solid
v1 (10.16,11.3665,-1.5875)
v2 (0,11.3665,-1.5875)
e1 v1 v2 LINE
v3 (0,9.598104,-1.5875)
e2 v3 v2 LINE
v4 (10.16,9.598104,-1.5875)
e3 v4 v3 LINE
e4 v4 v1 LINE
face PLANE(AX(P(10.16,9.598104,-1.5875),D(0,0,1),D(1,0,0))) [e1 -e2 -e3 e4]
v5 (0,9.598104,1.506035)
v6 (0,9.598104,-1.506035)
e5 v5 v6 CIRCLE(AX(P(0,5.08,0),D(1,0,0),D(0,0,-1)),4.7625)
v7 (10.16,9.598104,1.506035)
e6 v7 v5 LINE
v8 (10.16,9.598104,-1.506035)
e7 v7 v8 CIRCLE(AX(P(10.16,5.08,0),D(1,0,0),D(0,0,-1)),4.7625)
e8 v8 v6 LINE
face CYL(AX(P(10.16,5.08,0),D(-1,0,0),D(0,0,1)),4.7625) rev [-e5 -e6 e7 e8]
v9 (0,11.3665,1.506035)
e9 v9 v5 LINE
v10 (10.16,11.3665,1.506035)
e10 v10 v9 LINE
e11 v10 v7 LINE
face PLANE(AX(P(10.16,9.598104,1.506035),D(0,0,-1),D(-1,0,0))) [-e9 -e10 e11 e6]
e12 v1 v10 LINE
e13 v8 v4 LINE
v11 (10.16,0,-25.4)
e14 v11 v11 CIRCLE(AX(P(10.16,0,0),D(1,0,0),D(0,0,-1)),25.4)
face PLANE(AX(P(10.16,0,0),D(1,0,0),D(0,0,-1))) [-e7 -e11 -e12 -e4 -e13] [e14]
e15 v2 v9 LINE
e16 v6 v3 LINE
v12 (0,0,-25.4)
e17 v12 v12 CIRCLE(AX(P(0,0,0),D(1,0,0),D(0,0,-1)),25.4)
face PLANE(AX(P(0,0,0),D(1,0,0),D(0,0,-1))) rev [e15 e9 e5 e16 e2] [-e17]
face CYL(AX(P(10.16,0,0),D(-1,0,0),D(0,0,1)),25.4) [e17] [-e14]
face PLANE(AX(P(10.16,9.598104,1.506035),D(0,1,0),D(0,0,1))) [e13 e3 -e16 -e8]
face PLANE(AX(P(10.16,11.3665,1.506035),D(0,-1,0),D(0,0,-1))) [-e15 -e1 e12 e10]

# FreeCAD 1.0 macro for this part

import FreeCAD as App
import Part
import Sketcher
from FreeCAD import Vector
Q = App.Units.Quantity


def add_polygon(sketch, points):
    """Adds a closed chain of lines whose ends are joined by coincident constraints."""
    first, n = sketch.GeometryCount, len(points)
    for a, b in zip(points, points[1:] + points[:1]):
        sketch.addGeometry(Part.LineSegment(App.Vector(*a, 0), App.Vector(*b, 0)), False)
    for i in range(n):
        sketch.addConstraint(Sketcher.Constraint("Coincident", first + i, 2, first + (i + 1) % n, 1))

doc = App.newDocument("Part")
body = doc.addObject("PartDesign::Body", "Body")

sketch1 = body.newObject("Sketcher::SketchObject", "Sketch")
sketch1.AttachmentSupport = (doc.getObject("YZ_Plane"), [""])
sketch1.MapMode = "FlatFace"
sketch1.addGeometry(Part.Circle(Vector(0, 0, 0), Vector(0, 0, 1), 25), False)
sketch1.addConstraint([
    Sketcher.Constraint("Coincident", 0, 3, -1, 1),
    Sketcher.Constraint("Diameter", 0, Q("2 in")),
])
pad1 = body.newObject("PartDesign::Pad", "Pad")
pad1.Profile = sketch1
pad1.Length = Q("0.4 in")

sketch2 = body.newObject("Sketcher::SketchObject", "Sketch001")
sketch2.AttachmentSupport = (doc.getObject("YZ_Plane"), [""])
sketch2.MapMode = "FlatFace"
sketch2.addGeometry(Part.Circle(Vector(5.1, 0, 0), Vector(0, 0, 1), 4.8), False)
sketch2.addConstraint([
    Sketcher.Constraint("PointOnObject", 0, 3, -1),
    Sketcher.Constraint("Diameter", 0, Q("0.375 in")),
    Sketcher.Constraint("DistanceX", -1, 1, 0, 3, Q("0.2 in")),
])
pocket1 = body.newObject("PartDesign::Pocket", "Pocket")
pocket1.Profile = sketch2
pocket1.Type = "ThroughAll"
pocket1.Reversed = True

sketch3 = body.newObject("Sketcher::SketchObject", "Sketch002")
sketch3.AttachmentSupport = (doc.getObject("YZ_Plane"), [""])
sketch3.MapMode = "FlatFace"
add_polygon(sketch3, [(9.6, 1.5), (9.6, -1.6), (11.4, -1.6), (11.4, 1.5)])
sketch3.addConstraint([
    Sketcher.Constraint("Vertical", 0),
    Sketcher.Constraint("Horizontal", 1),
    Sketcher.Constraint("Vertical", 2),
    Sketcher.Constraint("Horizontal", 3),
    Sketcher.Constraint("DistanceY", 0, 2, -1, 1, Q("0.0625 in")),
    Sketcher.Constraint("DistanceX", -1, 1, 1, 2, Q("0.4475 in")),
    Sketcher.Constraint("DistanceX", 1, 1, 1, 2, 1.768396),
    Sketcher.Constraint("DistanceY", 0, 2, 0, 1, 3.093535),
])
pocket2 = body.newObject("PartDesign::Pocket", "Pocket001")
pocket2.Profile = sketch3
pocket2.Type = "ThroughAll"
pocket2.Reversed = True

doc.recompute()
